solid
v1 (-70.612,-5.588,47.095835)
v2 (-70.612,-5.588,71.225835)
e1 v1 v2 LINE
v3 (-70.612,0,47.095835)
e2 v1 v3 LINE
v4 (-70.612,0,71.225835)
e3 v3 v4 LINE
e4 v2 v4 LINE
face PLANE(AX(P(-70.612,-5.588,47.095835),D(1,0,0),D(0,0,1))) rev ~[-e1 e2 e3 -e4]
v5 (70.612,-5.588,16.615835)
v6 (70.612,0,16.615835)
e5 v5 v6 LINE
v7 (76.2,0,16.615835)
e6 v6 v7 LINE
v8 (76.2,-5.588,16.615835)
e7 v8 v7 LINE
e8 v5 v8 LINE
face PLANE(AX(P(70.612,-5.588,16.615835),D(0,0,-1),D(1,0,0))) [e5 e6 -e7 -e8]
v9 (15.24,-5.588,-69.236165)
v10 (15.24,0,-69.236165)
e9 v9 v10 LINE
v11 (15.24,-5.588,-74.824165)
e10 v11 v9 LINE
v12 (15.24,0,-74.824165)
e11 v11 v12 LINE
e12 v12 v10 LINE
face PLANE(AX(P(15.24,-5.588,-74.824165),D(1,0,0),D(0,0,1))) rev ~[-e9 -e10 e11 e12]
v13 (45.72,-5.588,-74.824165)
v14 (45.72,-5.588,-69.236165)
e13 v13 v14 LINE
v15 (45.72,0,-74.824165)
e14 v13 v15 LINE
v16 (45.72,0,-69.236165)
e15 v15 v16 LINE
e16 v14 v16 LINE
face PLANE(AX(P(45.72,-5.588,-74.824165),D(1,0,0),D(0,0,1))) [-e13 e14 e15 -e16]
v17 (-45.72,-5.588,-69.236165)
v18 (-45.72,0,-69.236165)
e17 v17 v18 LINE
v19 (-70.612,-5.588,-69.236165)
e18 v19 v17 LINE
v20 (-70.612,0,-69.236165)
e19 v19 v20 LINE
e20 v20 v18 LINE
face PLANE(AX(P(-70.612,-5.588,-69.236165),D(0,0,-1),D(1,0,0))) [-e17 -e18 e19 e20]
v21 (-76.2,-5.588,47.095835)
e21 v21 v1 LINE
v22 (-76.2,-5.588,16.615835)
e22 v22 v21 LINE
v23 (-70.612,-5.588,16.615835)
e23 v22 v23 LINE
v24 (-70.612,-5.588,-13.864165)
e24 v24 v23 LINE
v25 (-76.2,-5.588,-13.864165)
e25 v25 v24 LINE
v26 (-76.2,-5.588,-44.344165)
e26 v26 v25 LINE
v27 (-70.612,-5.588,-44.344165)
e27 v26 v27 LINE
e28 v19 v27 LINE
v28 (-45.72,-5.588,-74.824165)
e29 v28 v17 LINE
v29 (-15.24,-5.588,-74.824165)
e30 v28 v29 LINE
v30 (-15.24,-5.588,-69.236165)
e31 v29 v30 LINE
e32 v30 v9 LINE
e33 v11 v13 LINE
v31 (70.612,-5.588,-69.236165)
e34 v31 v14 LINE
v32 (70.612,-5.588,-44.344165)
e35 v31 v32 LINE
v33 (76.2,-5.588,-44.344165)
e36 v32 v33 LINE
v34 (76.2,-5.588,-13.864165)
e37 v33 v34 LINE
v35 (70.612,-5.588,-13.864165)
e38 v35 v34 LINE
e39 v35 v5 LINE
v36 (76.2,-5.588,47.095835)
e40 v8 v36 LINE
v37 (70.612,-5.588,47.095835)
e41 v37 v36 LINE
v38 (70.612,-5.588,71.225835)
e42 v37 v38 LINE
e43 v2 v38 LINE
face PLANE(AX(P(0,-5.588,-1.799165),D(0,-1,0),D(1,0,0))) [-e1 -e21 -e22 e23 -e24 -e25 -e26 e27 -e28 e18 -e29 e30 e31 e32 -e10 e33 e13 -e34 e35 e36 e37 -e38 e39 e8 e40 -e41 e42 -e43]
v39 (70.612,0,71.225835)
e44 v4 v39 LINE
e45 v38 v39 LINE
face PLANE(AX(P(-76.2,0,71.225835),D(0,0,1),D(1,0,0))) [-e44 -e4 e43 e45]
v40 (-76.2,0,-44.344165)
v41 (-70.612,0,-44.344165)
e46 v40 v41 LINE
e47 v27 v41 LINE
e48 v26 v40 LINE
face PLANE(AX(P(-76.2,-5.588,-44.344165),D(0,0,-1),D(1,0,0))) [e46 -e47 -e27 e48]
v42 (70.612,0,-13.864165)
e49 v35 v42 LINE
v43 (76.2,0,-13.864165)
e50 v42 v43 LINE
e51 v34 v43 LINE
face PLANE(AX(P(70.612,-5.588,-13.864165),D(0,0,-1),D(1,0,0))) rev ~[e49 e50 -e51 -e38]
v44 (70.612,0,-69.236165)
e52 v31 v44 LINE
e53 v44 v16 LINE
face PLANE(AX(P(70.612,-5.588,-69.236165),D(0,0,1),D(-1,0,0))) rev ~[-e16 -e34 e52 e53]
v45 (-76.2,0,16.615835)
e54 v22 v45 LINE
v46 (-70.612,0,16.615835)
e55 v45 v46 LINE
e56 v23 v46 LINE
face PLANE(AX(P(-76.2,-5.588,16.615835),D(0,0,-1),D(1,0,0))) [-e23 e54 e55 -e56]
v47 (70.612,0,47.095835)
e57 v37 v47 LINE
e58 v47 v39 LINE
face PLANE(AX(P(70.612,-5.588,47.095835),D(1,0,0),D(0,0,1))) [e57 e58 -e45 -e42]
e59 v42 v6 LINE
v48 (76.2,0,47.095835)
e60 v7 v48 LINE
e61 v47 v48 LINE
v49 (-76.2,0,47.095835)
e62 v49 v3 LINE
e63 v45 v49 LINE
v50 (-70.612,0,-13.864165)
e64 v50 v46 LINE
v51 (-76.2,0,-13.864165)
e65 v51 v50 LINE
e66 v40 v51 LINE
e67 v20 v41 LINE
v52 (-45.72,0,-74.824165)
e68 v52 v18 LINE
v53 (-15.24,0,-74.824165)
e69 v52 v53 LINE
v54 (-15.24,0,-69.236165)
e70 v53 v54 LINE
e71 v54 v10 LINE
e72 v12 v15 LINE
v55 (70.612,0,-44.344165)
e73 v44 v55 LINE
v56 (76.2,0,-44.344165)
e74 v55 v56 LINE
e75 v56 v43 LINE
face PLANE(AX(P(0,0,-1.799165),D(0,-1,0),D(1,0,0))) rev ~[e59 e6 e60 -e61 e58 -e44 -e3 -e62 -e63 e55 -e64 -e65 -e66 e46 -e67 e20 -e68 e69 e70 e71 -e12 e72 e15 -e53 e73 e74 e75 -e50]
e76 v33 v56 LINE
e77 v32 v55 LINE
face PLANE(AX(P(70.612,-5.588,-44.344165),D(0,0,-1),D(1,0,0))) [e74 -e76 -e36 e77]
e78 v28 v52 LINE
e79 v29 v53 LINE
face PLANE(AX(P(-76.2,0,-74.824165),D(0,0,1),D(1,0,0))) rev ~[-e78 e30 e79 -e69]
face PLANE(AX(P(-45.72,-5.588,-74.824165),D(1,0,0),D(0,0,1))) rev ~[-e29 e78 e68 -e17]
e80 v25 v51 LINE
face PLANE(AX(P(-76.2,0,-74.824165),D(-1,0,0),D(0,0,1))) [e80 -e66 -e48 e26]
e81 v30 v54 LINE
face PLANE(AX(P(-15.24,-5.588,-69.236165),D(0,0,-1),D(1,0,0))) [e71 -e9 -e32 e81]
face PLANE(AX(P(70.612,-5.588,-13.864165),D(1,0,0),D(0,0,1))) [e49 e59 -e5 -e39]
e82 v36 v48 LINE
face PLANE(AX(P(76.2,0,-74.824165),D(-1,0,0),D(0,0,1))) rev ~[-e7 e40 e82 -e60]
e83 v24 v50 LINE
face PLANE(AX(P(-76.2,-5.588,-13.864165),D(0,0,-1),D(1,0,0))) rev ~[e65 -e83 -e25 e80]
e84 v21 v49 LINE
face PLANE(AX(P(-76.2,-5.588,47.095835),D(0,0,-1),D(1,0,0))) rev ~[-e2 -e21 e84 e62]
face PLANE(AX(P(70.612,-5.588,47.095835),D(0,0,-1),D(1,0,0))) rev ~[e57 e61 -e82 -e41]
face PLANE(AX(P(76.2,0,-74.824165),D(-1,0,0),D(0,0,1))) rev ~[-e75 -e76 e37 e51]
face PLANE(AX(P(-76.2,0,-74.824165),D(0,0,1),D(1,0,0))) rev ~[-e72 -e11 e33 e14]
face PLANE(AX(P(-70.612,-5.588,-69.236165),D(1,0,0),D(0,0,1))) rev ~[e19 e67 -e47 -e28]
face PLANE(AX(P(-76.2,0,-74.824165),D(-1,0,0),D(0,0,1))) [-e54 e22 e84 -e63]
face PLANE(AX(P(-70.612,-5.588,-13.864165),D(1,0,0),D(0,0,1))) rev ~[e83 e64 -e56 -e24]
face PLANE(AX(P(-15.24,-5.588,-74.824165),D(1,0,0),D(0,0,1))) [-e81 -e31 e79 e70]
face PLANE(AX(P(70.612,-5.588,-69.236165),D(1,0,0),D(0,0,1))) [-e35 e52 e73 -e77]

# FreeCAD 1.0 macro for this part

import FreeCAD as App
import Part
import Sketcher

V = App.Vector
Q = App.Units.Quantity

doc = App.newDocument("Part")
body = doc.addObject("PartDesign::Body", "Body")

# Sketch on XZ plane
sketch1 = body.newObject("Sketcher::SketchObject", "Sketch")
sketch1.AttachmentSupport = (doc.getObject("XZ_Plane"), [""])
sketch1.MapMode = "FlatFace"
sketch1.addGeometry([
    Part.LineSegment(V(-76, 71, 0), V(-76, -75, 0)),
    Part.LineSegment(V(-76, -75, 0), V(76, -75, 0)),
    Part.LineSegment(V(76, -75, 0), V(76, 71, 0)),
    Part.LineSegment(V(76, 71, 0), V(-76, 71, 0)),
], False)
sketch1.addConstraint([
    Sketcher.Constraint("Coincident", 0, 2, 1, 1),
    Sketcher.Constraint("Coincident", 1, 2, 2, 1),
    Sketcher.Constraint("Coincident", 2, 2, 3, 1),
    Sketcher.Constraint("Coincident", 3, 2, 0, 1),
    Sketcher.Constraint("Vertical", 0),
    Sketcher.Constraint("Horizontal", 1),
    Sketcher.Constraint("Vertical", 2),
    Sketcher.Constraint("Horizontal", 3),
    Sketcher.Constraint("DistanceX", 1, 1, 1, 2, Q("6 in")),
    Sketcher.Constraint("DistanceX", 0, 2, -1, 1, Q("3 in")),
    Sketcher.Constraint("DistanceY", 0, 2, 0, 1, Q("5.75 in")),
    Sketcher.Constraint("DistanceY", 0, 2, -1, 1, 74.824165),
])
pad1 = body.newObject("PartDesign::Pad", "Pad")
pad1.Profile = sketch1
pad1.Length = Q("0.22 in")

# Sketch on XZ plane
sketch2 = body.newObject("Sketcher::SketchObject", "Sketch001")
sketch2.AttachmentSupport = (doc.getObject("XZ_Plane"), [""])
sketch2.MapMode = "FlatFace"
sketch2.AttachmentOffset = App.Placement(V(0, 0, 0.22 * 25.4), App.Rotation())
sketch2.addGeometry([
    Part.LineSegment(V(-76, 71, 0), V(-76, 47, 0)),  # 0
    Part.LineSegment(V(-76, 47, 0), V(-71, 47, 0)),  # 1
    Part.LineSegment(V(-71, 47, 0), V(-71, 71, 0)),  # 2
    Part.LineSegment(V(-71, 71, 0), V(-76, 71, 0)),  # 3
    Part.LineSegment(V(-76, 17, 0), V(-76, -14, 0)),  # 4
    Part.LineSegment(V(-76, -14, 0), V(-71, -14, 0)),  # 5
    Part.LineSegment(V(-71, -14, 0), V(-71, 17, 0)),  # 6
    Part.LineSegment(V(-71, 17, 0), V(-76, 17, 0)),  # 7
    Part.LineSegment(V(-76, -44, 0), V(-76, -75, 0)),  # 8
    Part.LineSegment(V(-76, -75, 0), V(-46, -75, 0)),  # 9
    Part.LineSegment(V(-46, -75, 0), V(-46, -69, 0)),  # 10
    Part.LineSegment(V(-46, -69, 0), V(-71, -69, 0)),  # 11
    Part.LineSegment(V(-71, -69, 0), V(-71, -44, 0)),  # 12
    Part.LineSegment(V(-71, -44, 0), V(-76, -44, 0)),  # 13
    Part.LineSegment(V(-15, -69, 0), V(-15, -75, 0)),  # 14
    Part.LineSegment(V(-15, -75, 0), V(15, -75, 0)),  # 15
    Part.LineSegment(V(15, -75, 0), V(15, -69, 0)),  # 16
    Part.LineSegment(V(15, -69, 0), V(-15, -69, 0)),  # 17
    Part.LineSegment(V(46, -69, 0), V(46, -75, 0)),  # 18
    Part.LineSegment(V(46, -75, 0), V(76, -75, 0)),  # 19
    Part.LineSegment(V(76, -75, 0), V(76, -44, 0)),  # 20
    Part.LineSegment(V(76, -44, 0), V(71, -44, 0)),  # 21
    Part.LineSegment(V(71, -44, 0), V(71, -69, 0)),  # 22
    Part.LineSegment(V(71, -69, 0), V(46, -69, 0)),  # 23
    Part.LineSegment(V(71, 17, 0), V(71, -14, 0)),  # 24
    Part.LineSegment(V(71, -14, 0), V(76, -14, 0)),  # 25
    Part.LineSegment(V(76, -14, 0), V(76, 17, 0)),  # 26
    Part.LineSegment(V(76, 17, 0), V(71, 17, 0)),  # 27
    Part.LineSegment(V(71, 71, 0), V(71, 47, 0)),  # 28
    Part.LineSegment(V(71, 47, 0), V(76, 47, 0)),  # 29
    Part.LineSegment(V(76, 47, 0), V(76, 71, 0)),  # 30
    Part.LineSegment(V(76, 71, 0), V(71, 71, 0)),  # 31
], False)
sketch2.addConstraint([
    Sketcher.Constraint("Coincident", 0, 2, 1, 1),
    Sketcher.Constraint("Coincident", 1, 2, 2, 1),
    Sketcher.Constraint("Coincident", 2, 2, 3, 1),
    Sketcher.Constraint("Coincident", 3, 2, 0, 1),
    Sketcher.Constraint("Coincident", 4, 2, 5, 1),
    Sketcher.Constraint("Coincident", 5, 2, 6, 1),
    Sketcher.Constraint("Coincident", 6, 2, 7, 1),
    Sketcher.Constraint("Coincident", 7, 2, 4, 1),
    Sketcher.Constraint("Coincident", 8, 2, 9, 1),
    Sketcher.Constraint("Coincident", 9, 2, 10, 1),
    Sketcher.Constraint("Coincident", 10, 2, 11, 1),
    Sketcher.Constraint("Coincident", 11, 2, 12, 1),
    Sketcher.Constraint("Coincident", 12, 2, 13, 1),
    Sketcher.Constraint("Coincident", 13, 2, 8, 1),
    Sketcher.Constraint("Coincident", 14, 2, 15, 1),
    Sketcher.Constraint("Coincident", 15, 2, 16, 1),
    Sketcher.Constraint("Coincident", 16, 2, 17, 1),
    Sketcher.Constraint("Coincident", 17, 2, 14, 1),
    Sketcher.Constraint("Coincident", 18, 2, 19, 1),
    Sketcher.Constraint("Coincident", 19, 2, 20, 1),
    Sketcher.Constraint("Coincident", 20, 2, 21, 1),
    Sketcher.Constraint("Coincident", 21, 2, 22, 1),
    Sketcher.Constraint("Coincident", 22, 2, 23, 1),
    Sketcher.Constraint("Coincident", 23, 2, 18, 1),
    Sketcher.Constraint("Coincident", 24, 2, 25, 1),
    Sketcher.Constraint("Coincident", 25, 2, 26, 1),
    Sketcher.Constraint("Coincident", 26, 2, 27, 1),
    Sketcher.Constraint("Coincident", 27, 2, 24, 1),
    Sketcher.Constraint("Coincident", 28, 2, 29, 1),
    Sketcher.Constraint("Coincident", 29, 2, 30, 1),
    Sketcher.Constraint("Coincident", 30, 2, 31, 1),
    Sketcher.Constraint("Coincident", 31, 2, 28, 1),
    Sketcher.Constraint("Vertical", 0),
    Sketcher.Constraint("Horizontal", 1),
    Sketcher.Constraint("Vertical", 2),
    Sketcher.Constraint("Horizontal", 3),
    Sketcher.Constraint("Vertical", 4),
    Sketcher.Constraint("Horizontal", 5),
    Sketcher.Constraint("Vertical", 6),
    Sketcher.Constraint("Horizontal", 7),
    Sketcher.Constraint("Vertical", 8),
    Sketcher.Constraint("Horizontal", 9),
    Sketcher.Constraint("Vertical", 10),
    Sketcher.Constraint("Horizontal", 11),
    Sketcher.Constraint("Vertical", 12),
    Sketcher.Constraint("Horizontal", 13),
    Sketcher.Constraint("Vertical", 14),
    Sketcher.Constraint("Horizontal", 15),
    Sketcher.Constraint("Vertical", 16),
    Sketcher.Constraint("Horizontal", 17),
    Sketcher.Constraint("Vertical", 18),
    Sketcher.Constraint("Horizontal", 19),
    Sketcher.Constraint("Vertical", 20),
    Sketcher.Constraint("Horizontal", 21),
    Sketcher.Constraint("Vertical", 22),
    Sketcher.Constraint("Horizontal", 23),
    Sketcher.Constraint("Vertical", 24),
    Sketcher.Constraint("Horizontal", 25),
    Sketcher.Constraint("Vertical", 26),
    Sketcher.Constraint("Horizontal", 27),
    Sketcher.Constraint("Vertical", 28),
    Sketcher.Constraint("Horizontal", 29),
    Sketcher.Constraint("Vertical", 30),
    Sketcher.Constraint("Horizontal", 31),
    Sketcher.Constraint("Symmetric", 9, 2, 18, 2, -2),
    Sketcher.Constraint("Symmetric", 13, 2, 20, 2, -2),
    Sketcher.Constraint("Symmetric", 11, 2, 22, 2, -2),
    Sketcher.Constraint("Symmetric", 5, 2, 24, 2, -2),
    Sketcher.Constraint("Symmetric", 7, 2, 26, 2, -2),
    Sketcher.Constraint("Symmetric", 1, 2, 28, 2, -2),
    Sketcher.Constraint("Symmetric", 3, 2, 30, 2, -2),
    Sketcher.Constraint("Horizontal", 9, 2, 14, 2),
    Sketcher.Constraint("Horizontal", 11, 2, 16, 2),
    Sketcher.Constraint("Vertical", 3, 2, 4, 2),
    Sketcher.Constraint("Vertical", 2, 2, 5, 2),
    Sketcher.Constraint("Vertical", 7, 2, 8, 2),
    Sketcher.Constraint("Vertical", 6, 2, 11, 2),
    Sketcher.Constraint("Equal", 9, 15),
    Sketcher.Constraint("Equal", 19, 4),
    Sketcher.Constraint("Equal", 6, 8),
    Sketcher.Constraint("Equal", 31, 10),
    Sketcher.Constraint("DistanceX", 9, 1, 9, 2, Q("1.2 in")),
    Sketcher.Constraint("DistanceX", 0, 2, -1, 1, Q("3 in")),
    Sketcher.Constraint("DistanceX", 1, 1, 1, 2, Q("0.22 in")),
    Sketcher.Constraint("DistanceY", 0, 2, 0, 1, Q("0.95 in")),
    Sketcher.Constraint("DistanceX", 14, 2, -1, 1, Q("0.6 in")),
    Sketcher.Constraint("DistanceY", 4, 2, 0, 2, Q("2.4 in")),
    Sketcher.Constraint("DistanceY", 8, 2, 4, 2, Q("2.4 in")),
    Sketcher.Constraint("DistanceY", -1, 1, 0, 2, 47.095835),
])
pocket1 = body.newObject("PartDesign::Pocket", "Pocket")
pocket1.Profile = sketch2
pocket1.Type = "ThroughAll"

doc.recompute()
